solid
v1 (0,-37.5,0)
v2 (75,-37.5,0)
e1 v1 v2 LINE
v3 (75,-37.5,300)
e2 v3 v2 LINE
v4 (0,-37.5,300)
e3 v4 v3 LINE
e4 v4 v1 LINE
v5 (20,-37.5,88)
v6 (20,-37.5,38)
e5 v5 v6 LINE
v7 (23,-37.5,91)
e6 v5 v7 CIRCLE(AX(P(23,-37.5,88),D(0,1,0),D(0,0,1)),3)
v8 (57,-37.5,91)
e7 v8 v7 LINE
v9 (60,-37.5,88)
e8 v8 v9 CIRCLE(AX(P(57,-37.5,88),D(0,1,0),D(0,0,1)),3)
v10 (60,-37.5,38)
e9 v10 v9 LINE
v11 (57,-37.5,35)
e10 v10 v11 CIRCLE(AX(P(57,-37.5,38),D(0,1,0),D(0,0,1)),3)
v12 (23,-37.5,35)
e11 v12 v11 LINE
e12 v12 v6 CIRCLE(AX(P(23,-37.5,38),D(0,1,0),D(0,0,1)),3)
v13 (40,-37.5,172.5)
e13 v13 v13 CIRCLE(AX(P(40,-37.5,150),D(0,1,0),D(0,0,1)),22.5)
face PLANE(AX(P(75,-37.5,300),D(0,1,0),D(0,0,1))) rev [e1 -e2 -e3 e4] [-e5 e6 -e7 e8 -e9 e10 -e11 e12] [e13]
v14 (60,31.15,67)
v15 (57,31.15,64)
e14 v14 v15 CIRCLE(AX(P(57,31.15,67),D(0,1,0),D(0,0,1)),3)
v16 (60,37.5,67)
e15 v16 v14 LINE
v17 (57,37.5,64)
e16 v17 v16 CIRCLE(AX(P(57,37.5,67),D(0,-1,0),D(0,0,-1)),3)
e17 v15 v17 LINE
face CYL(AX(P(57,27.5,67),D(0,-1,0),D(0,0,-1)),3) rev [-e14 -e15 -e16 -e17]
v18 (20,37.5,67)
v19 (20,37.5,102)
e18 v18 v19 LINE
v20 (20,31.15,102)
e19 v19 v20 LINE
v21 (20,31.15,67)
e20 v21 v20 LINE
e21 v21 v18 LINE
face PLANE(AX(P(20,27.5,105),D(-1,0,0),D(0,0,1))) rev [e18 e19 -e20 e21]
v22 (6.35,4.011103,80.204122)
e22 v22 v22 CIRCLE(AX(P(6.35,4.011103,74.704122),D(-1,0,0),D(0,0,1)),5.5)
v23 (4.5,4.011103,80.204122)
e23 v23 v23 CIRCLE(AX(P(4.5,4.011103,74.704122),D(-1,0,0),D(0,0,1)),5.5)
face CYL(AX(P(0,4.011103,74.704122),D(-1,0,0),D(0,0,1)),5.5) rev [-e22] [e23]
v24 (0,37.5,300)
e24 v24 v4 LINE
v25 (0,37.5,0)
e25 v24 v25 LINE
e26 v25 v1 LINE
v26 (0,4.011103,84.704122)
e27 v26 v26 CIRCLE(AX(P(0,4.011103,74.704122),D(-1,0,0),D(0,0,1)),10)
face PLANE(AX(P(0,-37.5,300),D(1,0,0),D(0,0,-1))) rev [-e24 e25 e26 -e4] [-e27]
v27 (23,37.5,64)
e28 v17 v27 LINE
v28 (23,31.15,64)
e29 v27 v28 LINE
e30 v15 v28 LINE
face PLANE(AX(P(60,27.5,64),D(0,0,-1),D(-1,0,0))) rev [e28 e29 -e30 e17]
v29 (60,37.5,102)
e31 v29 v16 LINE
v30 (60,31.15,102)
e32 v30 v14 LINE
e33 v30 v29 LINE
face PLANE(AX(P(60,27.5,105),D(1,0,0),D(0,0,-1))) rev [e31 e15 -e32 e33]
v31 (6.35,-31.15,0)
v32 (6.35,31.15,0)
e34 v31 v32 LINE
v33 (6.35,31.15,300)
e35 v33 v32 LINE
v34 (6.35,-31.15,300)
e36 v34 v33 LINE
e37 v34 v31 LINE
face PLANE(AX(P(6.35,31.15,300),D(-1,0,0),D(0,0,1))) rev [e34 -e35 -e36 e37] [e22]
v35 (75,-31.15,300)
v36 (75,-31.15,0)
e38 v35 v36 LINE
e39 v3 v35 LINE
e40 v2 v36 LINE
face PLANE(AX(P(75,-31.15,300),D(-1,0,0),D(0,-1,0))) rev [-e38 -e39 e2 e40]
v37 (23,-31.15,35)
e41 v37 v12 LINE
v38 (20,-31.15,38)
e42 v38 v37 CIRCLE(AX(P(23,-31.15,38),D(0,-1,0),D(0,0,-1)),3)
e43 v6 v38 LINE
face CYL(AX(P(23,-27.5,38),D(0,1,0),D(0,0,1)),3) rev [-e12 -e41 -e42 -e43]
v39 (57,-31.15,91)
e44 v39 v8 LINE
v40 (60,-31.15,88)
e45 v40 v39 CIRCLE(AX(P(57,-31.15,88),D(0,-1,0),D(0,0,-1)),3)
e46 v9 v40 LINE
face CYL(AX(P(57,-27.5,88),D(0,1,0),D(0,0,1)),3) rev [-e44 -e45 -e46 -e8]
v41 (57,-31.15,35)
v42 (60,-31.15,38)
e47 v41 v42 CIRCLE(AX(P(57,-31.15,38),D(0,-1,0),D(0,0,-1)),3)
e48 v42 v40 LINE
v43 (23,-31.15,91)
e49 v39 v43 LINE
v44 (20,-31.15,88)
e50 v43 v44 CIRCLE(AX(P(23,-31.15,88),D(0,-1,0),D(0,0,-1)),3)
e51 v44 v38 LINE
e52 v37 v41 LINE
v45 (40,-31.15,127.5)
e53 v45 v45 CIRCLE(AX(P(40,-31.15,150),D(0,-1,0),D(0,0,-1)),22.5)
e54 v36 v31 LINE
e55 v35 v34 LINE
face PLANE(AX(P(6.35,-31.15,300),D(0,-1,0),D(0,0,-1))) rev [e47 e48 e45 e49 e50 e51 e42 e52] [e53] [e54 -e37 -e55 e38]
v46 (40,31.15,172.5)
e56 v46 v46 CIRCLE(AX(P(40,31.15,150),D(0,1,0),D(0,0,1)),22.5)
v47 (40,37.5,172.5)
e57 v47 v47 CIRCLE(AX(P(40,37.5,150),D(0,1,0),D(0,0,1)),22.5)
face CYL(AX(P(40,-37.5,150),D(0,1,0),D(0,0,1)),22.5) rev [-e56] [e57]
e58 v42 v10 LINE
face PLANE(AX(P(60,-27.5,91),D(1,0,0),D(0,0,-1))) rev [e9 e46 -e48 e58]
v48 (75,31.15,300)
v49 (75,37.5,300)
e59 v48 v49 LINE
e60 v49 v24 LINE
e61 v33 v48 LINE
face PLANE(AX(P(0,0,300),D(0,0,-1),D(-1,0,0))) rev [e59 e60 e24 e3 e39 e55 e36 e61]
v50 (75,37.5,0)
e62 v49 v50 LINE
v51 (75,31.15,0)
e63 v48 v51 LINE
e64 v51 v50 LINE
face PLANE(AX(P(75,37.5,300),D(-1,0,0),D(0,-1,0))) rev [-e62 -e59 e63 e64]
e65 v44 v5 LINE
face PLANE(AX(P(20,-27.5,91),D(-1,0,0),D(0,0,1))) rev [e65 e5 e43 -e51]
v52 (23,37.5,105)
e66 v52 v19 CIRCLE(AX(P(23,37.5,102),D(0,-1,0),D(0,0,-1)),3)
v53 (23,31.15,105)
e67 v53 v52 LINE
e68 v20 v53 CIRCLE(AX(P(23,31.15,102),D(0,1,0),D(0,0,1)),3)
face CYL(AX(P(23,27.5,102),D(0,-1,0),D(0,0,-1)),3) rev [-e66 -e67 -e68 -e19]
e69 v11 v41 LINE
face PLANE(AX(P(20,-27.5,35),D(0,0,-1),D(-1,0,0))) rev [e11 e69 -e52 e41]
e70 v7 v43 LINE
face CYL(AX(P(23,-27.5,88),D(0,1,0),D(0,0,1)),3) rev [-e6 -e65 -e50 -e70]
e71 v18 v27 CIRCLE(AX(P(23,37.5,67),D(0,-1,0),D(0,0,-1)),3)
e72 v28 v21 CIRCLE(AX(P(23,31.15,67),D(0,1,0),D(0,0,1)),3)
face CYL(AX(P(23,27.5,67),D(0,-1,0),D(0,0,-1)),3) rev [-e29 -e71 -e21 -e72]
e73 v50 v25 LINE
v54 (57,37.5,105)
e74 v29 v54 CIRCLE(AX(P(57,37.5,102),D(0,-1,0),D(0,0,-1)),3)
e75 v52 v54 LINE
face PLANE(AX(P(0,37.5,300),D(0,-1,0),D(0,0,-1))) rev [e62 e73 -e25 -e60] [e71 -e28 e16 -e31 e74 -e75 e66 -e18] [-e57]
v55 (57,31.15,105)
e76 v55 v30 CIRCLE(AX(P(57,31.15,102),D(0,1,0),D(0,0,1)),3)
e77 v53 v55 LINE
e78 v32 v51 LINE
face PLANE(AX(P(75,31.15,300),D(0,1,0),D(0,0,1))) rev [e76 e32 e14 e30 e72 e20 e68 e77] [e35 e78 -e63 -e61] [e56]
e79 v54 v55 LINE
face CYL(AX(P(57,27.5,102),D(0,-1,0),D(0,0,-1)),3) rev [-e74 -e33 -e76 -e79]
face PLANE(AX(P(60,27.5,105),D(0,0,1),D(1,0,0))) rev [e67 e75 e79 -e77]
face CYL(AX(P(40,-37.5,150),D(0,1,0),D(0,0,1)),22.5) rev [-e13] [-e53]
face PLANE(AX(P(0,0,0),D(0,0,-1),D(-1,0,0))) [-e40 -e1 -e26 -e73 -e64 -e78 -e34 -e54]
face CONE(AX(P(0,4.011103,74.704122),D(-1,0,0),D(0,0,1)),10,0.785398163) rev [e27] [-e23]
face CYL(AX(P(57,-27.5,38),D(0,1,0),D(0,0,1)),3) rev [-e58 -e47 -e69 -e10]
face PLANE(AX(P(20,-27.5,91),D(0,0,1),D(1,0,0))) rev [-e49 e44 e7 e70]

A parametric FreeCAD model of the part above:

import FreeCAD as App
import Part
import Sketcher


def edges_at(feature, points):
    """Names of the edges that pass closest to the given points."""
    edges = feature.Shape.Edges
    near = lambda p: min(range(len(edges)), key=lambda i: edges[i].distToShape(Part.Vertex(*p))[0])
    return sorted({f"Edge{near(p) + 1}" for p in points})


def add_polygon(sketch, points):
    """Adds a closed chain of lines whose ends are joined by coincident constraints."""
    first, n = sketch.GeometryCount, len(points)
    for a, b in zip(points, points[1:] + points[:1]):
        sketch.addGeometry(Part.LineSegment(App.Vector(*a, 0), App.Vector(*b, 0)), False)
    for i in range(n):
        sketch.addConstraint(Sketcher.Constraint("Coincident", first + i, 2, first + (i + 1) % n, 1))

doc = App.newDocument("Part")
body = doc.addObject("PartDesign::Body", "Body")

sketch1 = body.newObject("Sketcher::SketchObject", "Sketch")
sketch1.AttachmentSupport = (doc.getObject("XY_Plane"), [""])
sketch1.MapMode = "FlatFace"
add_polygon(sketch1, [(0, 38), (0, -38), (75, -38), (75, -31), (6, -31), (6, 31), (75, 31), (75, 38)])
sketch1.addConstraint([
    Sketcher.Constraint("Vertical", 0),
    Sketcher.Constraint("Horizontal", 1),
    Sketcher.Constraint("Vertical", 2),
    Sketcher.Constraint("Horizontal", 3),
    Sketcher.Constraint("Vertical", 4),
    Sketcher.Constraint("Horizontal", 5),
    Sketcher.Constraint("Vertical", 6),
    Sketcher.Constraint("Horizontal", 7),
    Sketcher.Constraint("Symmetric", 0, 2, 7, 2, -1, 1),
    Sketcher.Constraint("Symmetric", 2, 2, 5, 2, -1),
    Sketcher.Constraint("Equal", 7, 0),
    Sketcher.Constraint("DistanceX", 1, 1, 1, 2, 75.0),
    Sketcher.Constraint("DistanceY", 4, 1, 4, 2, 62.3),
    Sketcher.Constraint("DistanceX", 3, 2, 3, 1, 68.65),
])
pad1 = body.newObject("PartDesign::Pad", "Pad")
pad1.Profile = sketch1
pad1.Length = 300

sketch2 = body.newObject("Sketcher::SketchObject", "Sketch001")
sketch2.AttachmentSupport = (doc.getObject("XZ_Plane"), [""])
sketch2.MapMode = "FlatFace"
sketch2.AttachmentOffset = App.Placement(App.Vector(0, 0, -37.5), App.Rotation())
sketch2.addGeometry(Part.Circle(App.Vector(40, 150, 0), App.Vector(0, 0, 1), 22), False)
sketch2.addConstraint([
    Sketcher.Constraint("Diameter", 0, 45.0),
    Sketcher.Constraint("DistanceX", -1, 1, 0, 3, 40.0),
    Sketcher.Constraint("DistanceY", -1, 1, 0, 3, 150.0),
])
pocket1 = body.newObject("PartDesign::Pocket", "Pocket")
pocket1.Profile = sketch2
pocket1.Type = "ThroughAll"
pocket1.Reversed = True

sketch3 = body.newObject("Sketcher::SketchObject", "Sketch002")
sketch3.AttachmentSupport = (doc.getObject("XZ_Plane"), [""])
sketch3.MapMode = "FlatFace"
sketch3.AttachmentOffset = App.Placement(App.Vector(0, 0, 37.5), App.Rotation())
add_polygon(sketch3, [(20, 91), (20, 35), (60, 35), (60, 91)])
sketch3.addConstraint([
    Sketcher.Constraint("Vertical", 0),
    Sketcher.Constraint("Horizontal", 1),
    Sketcher.Constraint("Vertical", 2),
    Sketcher.Constraint("Horizontal", 3),
    Sketcher.Constraint("DistanceX", 1, 1, 1, 2, 40.0),
    Sketcher.Constraint("DistanceY", 0, 2, 0, 1, 56.0),
    Sketcher.Constraint("DistanceX", -1, 1, 0, 2, 20.0),
    Sketcher.Constraint("DistanceY", -1, 1, 0, 2, 35.0),
])
pocket2 = body.newObject("PartDesign::Pocket", "Pocket001")
pocket2.Profile = sketch3
pocket2.Length = 10

sketch4 = body.newObject("Sketcher::SketchObject", "Sketch003")
sketch4.AttachmentSupport = (doc.getObject("XZ_Plane"), [""])
sketch4.MapMode = "FlatFace"
sketch4.AttachmentOffset = App.Placement(App.Vector(0, 0, -37.5), App.Rotation())
add_polygon(sketch4, [(20, 64), (20, 105), (60, 105), (60, 64)])
sketch4.addConstraint([
    Sketcher.Constraint("Vertical", 0),
    Sketcher.Constraint("Horizontal", 1),
    Sketcher.Constraint("Vertical", 2),
    Sketcher.Constraint("Horizontal", 3),
    Sketcher.Constraint("DistanceX", 1, 1, 1, 2, 40.0),
    Sketcher.Constraint("DistanceY", 0, 1, 0, 2, 41.0),
    Sketcher.Constraint("DistanceX", -1, 1, 0, 2, 20.0),
    Sketcher.Constraint("DistanceY", -1, 1, 0, 2, 105.0),
])
pocket3 = body.newObject("PartDesign::Pocket", "Pocket002")
pocket3.Profile = sketch4
pocket3.Length = 10
pocket3.Reversed = True
doc.recompute()

fillet = body.newObject("PartDesign::Fillet", "Fillet")
fillet.Base = (pocket3, edges_at(pocket3, [
    (20, -34.325, 91),
    (60, -34.325, 91),
    (60, -34.325, 35),
    (20, -34.325, 35),
    (60, 34.325, 105),
    (20, 34.325, 105),
    (20, 34.325, 64),
    (60, 34.325, 64),
]))
fillet.Radius = 3

sketch5 = body.newObject("Sketcher::SketchObject", "Sketch004")
sketch5.AttachmentSupport = (doc.getObject("YZ_Plane"), [""])
sketch5.MapMode = "FlatFace"
sketch5.addGeometry(Part.Circle(App.Vector(4, 75, 0), App.Vector(0, 0, 1), 6), False)
sketch5.addConstraint([
    Sketcher.Constraint("Diameter", 0, 11.0),
    Sketcher.Constraint("DistanceY", -1, 1, 0, 3, 74.704122),
    Sketcher.Constraint("DistanceX", -1, 1, 0, 3, 4.011103),
])
doc.recompute()
hole = body.newObject("PartDesign::Hole", "Hole")
hole.Profile = sketch5
hole.ThreadType = "None"
hole.Diameter = 11
hole.DepthType = "Dimension"
hole.Depth = 20.003
hole.DrillPoint = "Angled"
hole.DrillPointAngle = 118
hole.HoleCutType = "Countersink"
hole.HoleCutDiameter = 20
hole.HoleCutCountersinkAngle = 90
hole.Reversed = True

doc.recompute()
